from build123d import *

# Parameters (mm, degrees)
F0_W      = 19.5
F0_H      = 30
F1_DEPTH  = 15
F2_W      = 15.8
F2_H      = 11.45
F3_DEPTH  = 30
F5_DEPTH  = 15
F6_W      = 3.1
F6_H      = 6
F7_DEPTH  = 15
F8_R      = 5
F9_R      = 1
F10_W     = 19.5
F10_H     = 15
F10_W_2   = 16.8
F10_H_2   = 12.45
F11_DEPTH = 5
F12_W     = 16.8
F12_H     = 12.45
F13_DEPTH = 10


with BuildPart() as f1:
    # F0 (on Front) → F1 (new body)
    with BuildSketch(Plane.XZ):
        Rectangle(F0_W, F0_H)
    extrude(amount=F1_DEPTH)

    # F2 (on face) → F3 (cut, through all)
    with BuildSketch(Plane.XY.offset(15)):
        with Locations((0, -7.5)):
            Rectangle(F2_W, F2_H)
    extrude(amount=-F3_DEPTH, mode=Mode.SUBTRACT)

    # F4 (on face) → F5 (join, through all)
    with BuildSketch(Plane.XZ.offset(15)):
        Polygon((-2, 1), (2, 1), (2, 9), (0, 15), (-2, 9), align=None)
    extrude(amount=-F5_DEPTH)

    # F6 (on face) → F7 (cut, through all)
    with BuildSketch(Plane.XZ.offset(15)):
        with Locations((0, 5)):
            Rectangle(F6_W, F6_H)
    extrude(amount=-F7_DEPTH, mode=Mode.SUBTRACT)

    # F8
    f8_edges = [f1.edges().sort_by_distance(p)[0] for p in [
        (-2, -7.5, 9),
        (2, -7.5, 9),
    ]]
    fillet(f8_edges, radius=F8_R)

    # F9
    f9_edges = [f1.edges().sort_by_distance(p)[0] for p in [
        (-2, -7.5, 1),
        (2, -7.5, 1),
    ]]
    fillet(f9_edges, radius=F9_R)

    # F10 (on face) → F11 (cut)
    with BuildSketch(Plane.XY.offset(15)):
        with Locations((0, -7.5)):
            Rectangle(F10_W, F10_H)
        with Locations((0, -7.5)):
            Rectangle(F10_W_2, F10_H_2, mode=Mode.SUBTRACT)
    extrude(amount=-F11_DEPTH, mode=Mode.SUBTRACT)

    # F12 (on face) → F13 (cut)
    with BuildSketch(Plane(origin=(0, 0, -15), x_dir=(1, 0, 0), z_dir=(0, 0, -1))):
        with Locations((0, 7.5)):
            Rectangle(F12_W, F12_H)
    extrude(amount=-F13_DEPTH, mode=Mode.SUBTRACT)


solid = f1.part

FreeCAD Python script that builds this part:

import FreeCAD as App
import Part
import Sketcher

V = App.Vector
Q = App.Units.Quantity


def edges_at(feature, points):
    """Names of the edges that pass closest to the given points."""
    edges = feature.Shape.Edges
    near = lambda p: min(range(len(edges)), key=lambda i: edges[i].distToShape(Part.Vertex(*p))[0])
    return sorted({f"Edge{near(p) + 1}" for p in points})


def add_polygon(sketch, points):
    """Adds a closed chain of lines whose ends are joined by coincident constraints."""
    first, n = sketch.GeometryCount, len(points)
    for a, b in zip(points, points[1:] + points[:1]):
        sketch.addGeometry(Part.LineSegment(App.Vector(*a, 0), App.Vector(*b, 0)), False)
    for i in range(n):
        sketch.addConstraint(Sketcher.Constraint("Coincident", first + i, 2, first + (i + 1) % n, 1))

doc = App.newDocument("Part")
body = doc.addObject("PartDesign::Body", "Body")

sketch1 = doc.addObject("Sketcher::SketchObject", "Sketch")
body.addObject(sketch1)
sketch1.AttachmentSupport = (doc.XZ_Plane, [""])
sketch1.MapMode = "FlatFace"
add_polygon(sketch1, [(-9.75, 15), (-9.75, -15), (9.75, -15), (9.75, 15)])
sketch1.addConstraint(Sketcher.Constraint("Vertical", 0))
sketch1.addConstraint(Sketcher.Constraint("Horizontal", 1))
sketch1.addConstraint(Sketcher.Constraint("Vertical", 2))
sketch1.addConstraint(Sketcher.Constraint("Horizontal", 3))
sketch1.addConstraint(Sketcher.Constraint("Symmetric", 0, 2, 2, 2, -1, 1))
sketch1.addConstraint(Sketcher.Constraint("DistanceY", 0, 2, 0, 1, Q("30 mm")))
sketch1.addConstraint(Sketcher.Constraint("DistanceX", 1, 1, 1, 2, Q("19.5 mm")))
pad1 = doc.addObject("PartDesign::Pad", "Pad")
body.addObject(pad1)
pad1.Profile = sketch1
pad1.Length = 15

sketch2 = doc.addObject("Sketcher::SketchObject", "Sketch001")
body.addObject(sketch2)
sketch2.AttachmentSupport = (doc.XY_Plane, [""])
sketch2.MapMode = "FlatFace"
sketch2.AttachmentOffset = App.Placement(V(0, 0, 15), App.Rotation())
add_polygon(sketch2, [(-7.9, -1.775), (-7.9, -13.225), (7.9, -13.225), (7.9, -1.775)])
sketch2.addConstraint(Sketcher.Constraint("Vertical", 0))
sketch2.addConstraint(Sketcher.Constraint("Horizontal", 1))
sketch2.addConstraint(Sketcher.Constraint("Vertical", 2))
sketch2.addConstraint(Sketcher.Constraint("Horizontal", 3))
sketch2.addConstraint(Sketcher.Constraint("DistanceX", 1, 1, 1, 2, Q("15.8 mm")))
sketch2.addConstraint(Sketcher.Constraint("DistanceY", 0, 2, 0, 1, Q("11.45 mm")))
sketch2.addConstraint(Sketcher.Constraint("DistanceX", 0, 2, -1, 1, Q("7.9 mm")))
sketch2.addConstraint(Sketcher.Constraint("DistanceY", 0, 2, -1, 1, Q("13.225 mm")))
pocket1 = doc.addObject("PartDesign::Pocket", "Pocket")
body.addObject(pocket1)
pocket1.Profile = sketch2
pocket1.Type = "ThroughAll"

sketch3 = doc.addObject("Sketcher::SketchObject", "Sketch002")
body.addObject(sketch3)
sketch3.AttachmentSupport = (doc.XZ_Plane, [""])
sketch3.MapMode = "FlatFace"
sketch3.AttachmentOffset = App.Placement(V(0, 0, 15), App.Rotation())
add_polygon(sketch3, [(-2, 1), (2, 1), (2, 9), (0, 15), (-2, 9)])
sketch3.addConstraint(Sketcher.Constraint("Horizontal", 0))
sketch3.addConstraint(Sketcher.Constraint("Vertical", 1))
sketch3.addConstraint(Sketcher.Constraint("Vertical", 4))
sketch3.addConstraint(Sketcher.Constraint("Symmetric", 1, 2, 3, 2, -2))
sketch3.addConstraint(Sketcher.Constraint("PointOnObject", 2, 2, -2))
sketch3.addConstraint(Sketcher.Constraint("DistanceX", 0, 1, 0, 2, Q("4 mm")))
sketch3.addConstraint(Sketcher.Constraint("DistanceY", 1, 1, 1, 2, Q("8 mm")))
sketch3.addConstraint(Sketcher.Constraint("DistanceY", -1, 1, 0, 2, Q("1 mm")))
sketch3.addConstraint(Sketcher.Constraint("DistanceY", -1, 1, 2, 2, Q("15 mm")))
pad2 = doc.addObject("PartDesign::Pad", "Pad001")
body.addObject(pad2)
pad2.Profile = sketch3
pad2.Type = "UpToLast"
pad2.Reversed = True

sketch4 = doc.addObject("Sketcher::SketchObject", "Sketch003")
body.addObject(sketch4)
sketch4.AttachmentSupport = (doc.XZ_Plane, [""])
sketch4.MapMode = "FlatFace"
sketch4.AttachmentOffset = App.Placement(V(0, 0, 15), App.Rotation())
add_polygon(sketch4, [(-1.55, 8), (-1.55, 2), (1.55, 2), (1.55, 8)])
sketch4.addConstraint(Sketcher.Constraint("Vertical", 0))
sketch4.addConstraint(Sketcher.Constraint("Horizontal", 1))
sketch4.addConstraint(Sketcher.Constraint("Vertical", 2))
sketch4.addConstraint(Sketcher.Constraint("Horizontal", 3))
sketch4.addConstraint(Sketcher.Constraint("DistanceY", 0, 2, 0, 1, Q("6 mm")))
sketch4.addConstraint(Sketcher.Constraint("DistanceX", 1, 1, 1, 2, Q("3.1 mm")))
sketch4.addConstraint(Sketcher.Constraint("DistanceY", -1, 1, 0, 2, Q("2 mm")))
sketch4.addConstraint(Sketcher.Constraint("DistanceX", 0, 2, -1, 1, Q("1.55 mm")))
pocket2 = doc.addObject("PartDesign::Pocket", "Pocket001")
body.addObject(pocket2)
pocket2.Profile = sketch4
pocket2.Type = "ThroughAll"
doc.recompute()

fillet = doc.addObject("PartDesign::Fillet", "Fillet")
body.addObject(fillet)
fillet.Base = (pocket2, edges_at(pocket2, [(-2, -7.5, 9), (2, -7.5, 9)]))
fillet.Radius = 5
doc.recompute()

fillet2 = doc.addObject("PartDesign::Fillet", "Fillet001")
body.addObject(fillet2)
fillet2.Base = (fillet, edges_at(fillet, [(-2, -7.5, 1), (2, -7.5, 1)]))
fillet2.Radius = 1

sketch5 = doc.addObject("Sketcher::SketchObject", "Sketch004")
body.addObject(sketch5)
sketch5.AttachmentSupport = (doc.XY_Plane, [""])
sketch5.MapMode = "FlatFace"
sketch5.AttachmentOffset = App.Placement(V(0, 0, 15), App.Rotation())
add_polygon(sketch5, [(-9.75, 0), (-9.75, -15), (9.75, -15), (9.75, 0)])
add_polygon(sketch5, [(8.4, -13.725), (-8.4, -13.725), (-8.4, -1.275), (8.4, -1.275)])
sketch5.addConstraint(Sketcher.Constraint("Vertical", 0))
sketch5.addConstraint(Sketcher.Constraint("Horizontal", 1))
sketch5.addConstraint(Sketcher.Constraint("Vertical", 2))
sketch5.addConstraint(Sketcher.Constraint("Horizontal", 3))
sketch5.addConstraint(Sketcher.Constraint("Horizontal", 4))
sketch5.addConstraint(Sketcher.Constraint("Vertical", 5))
sketch5.addConstraint(Sketcher.Constraint("Horizontal", 6))
sketch5.addConstraint(Sketcher.Constraint("Vertical", 7))
sketch5.addConstraint(Sketcher.Constraint("Symmetric", 2, 2, 3, 2, -1, 1))
sketch5.addConstraint(Sketcher.Constraint("DistanceY", 0, 2, 0, 1, Q("15 mm")))
sketch5.addConstraint(Sketcher.Constraint("DistanceX", 1, 1, 1, 2, Q("19.5 mm")))
sketch5.addConstraint(Sketcher.Constraint("DistanceX", 4, 2, 4, 1, Q("16.8 mm")))
sketch5.addConstraint(Sketcher.Constraint("DistanceY", 5, 1, 5, 2, Q("12.45 mm")))
sketch5.addConstraint(Sketcher.Constraint("DistanceX", 4, 2, -1, 1, Q("8.4 mm")))
sketch5.addConstraint(Sketcher.Constraint("DistanceY", 4, 2, -1, 1, Q("13.725 mm")))
pocket3 = doc.addObject("PartDesign::Pocket", "Pocket002")
body.addObject(pocket3)
pocket3.Profile = sketch5
pocket3.Length = 5

sketch6 = doc.addObject("Sketcher::SketchObject", "Sketch005")
body.addObject(sketch6)
sketch6.AttachmentSupport = (doc.XY_Plane, [""])
sketch6.MapMode = "FlatFace"
sketch6.AttachmentOffset = App.Placement(V(0, 0, -15), App.Rotation())
add_polygon(sketch6, [(-8.4, -13.725), (-8.4, -1.275), (8.4, -1.275), (8.4, -13.725)])
sketch6.addConstraint(Sketcher.Constraint("Vertical", 0))
sketch6.addConstraint(Sketcher.Constraint("Horizontal", 1))
sketch6.addConstraint(Sketcher.Constraint("Vertical", 2))
sketch6.addConstraint(Sketcher.Constraint("Horizontal", 3))
sketch6.addConstraint(Sketcher.Constraint("DistanceX", 1, 1, 1, 2, Q("16.8 mm")))
sketch6.addConstraint(Sketcher.Constraint("DistanceY", 0, 1, 0, 2, Q("12.45 mm")))
sketch6.addConstraint(Sketcher.Constraint("DistanceX", 0, 2, -1, 1, Q("8.4 mm")))
sketch6.addConstraint(Sketcher.Constraint("DistanceY", 0, 2, -1, 1, Q("1.275 mm")))
pocket4 = doc.addObject("PartDesign::Pocket", "Pocket003")
body.addObject(pocket4)
pocket4.Profile = sketch6
pocket4.Length = 10
pocket4.Reversed = True

doc.recompute()
